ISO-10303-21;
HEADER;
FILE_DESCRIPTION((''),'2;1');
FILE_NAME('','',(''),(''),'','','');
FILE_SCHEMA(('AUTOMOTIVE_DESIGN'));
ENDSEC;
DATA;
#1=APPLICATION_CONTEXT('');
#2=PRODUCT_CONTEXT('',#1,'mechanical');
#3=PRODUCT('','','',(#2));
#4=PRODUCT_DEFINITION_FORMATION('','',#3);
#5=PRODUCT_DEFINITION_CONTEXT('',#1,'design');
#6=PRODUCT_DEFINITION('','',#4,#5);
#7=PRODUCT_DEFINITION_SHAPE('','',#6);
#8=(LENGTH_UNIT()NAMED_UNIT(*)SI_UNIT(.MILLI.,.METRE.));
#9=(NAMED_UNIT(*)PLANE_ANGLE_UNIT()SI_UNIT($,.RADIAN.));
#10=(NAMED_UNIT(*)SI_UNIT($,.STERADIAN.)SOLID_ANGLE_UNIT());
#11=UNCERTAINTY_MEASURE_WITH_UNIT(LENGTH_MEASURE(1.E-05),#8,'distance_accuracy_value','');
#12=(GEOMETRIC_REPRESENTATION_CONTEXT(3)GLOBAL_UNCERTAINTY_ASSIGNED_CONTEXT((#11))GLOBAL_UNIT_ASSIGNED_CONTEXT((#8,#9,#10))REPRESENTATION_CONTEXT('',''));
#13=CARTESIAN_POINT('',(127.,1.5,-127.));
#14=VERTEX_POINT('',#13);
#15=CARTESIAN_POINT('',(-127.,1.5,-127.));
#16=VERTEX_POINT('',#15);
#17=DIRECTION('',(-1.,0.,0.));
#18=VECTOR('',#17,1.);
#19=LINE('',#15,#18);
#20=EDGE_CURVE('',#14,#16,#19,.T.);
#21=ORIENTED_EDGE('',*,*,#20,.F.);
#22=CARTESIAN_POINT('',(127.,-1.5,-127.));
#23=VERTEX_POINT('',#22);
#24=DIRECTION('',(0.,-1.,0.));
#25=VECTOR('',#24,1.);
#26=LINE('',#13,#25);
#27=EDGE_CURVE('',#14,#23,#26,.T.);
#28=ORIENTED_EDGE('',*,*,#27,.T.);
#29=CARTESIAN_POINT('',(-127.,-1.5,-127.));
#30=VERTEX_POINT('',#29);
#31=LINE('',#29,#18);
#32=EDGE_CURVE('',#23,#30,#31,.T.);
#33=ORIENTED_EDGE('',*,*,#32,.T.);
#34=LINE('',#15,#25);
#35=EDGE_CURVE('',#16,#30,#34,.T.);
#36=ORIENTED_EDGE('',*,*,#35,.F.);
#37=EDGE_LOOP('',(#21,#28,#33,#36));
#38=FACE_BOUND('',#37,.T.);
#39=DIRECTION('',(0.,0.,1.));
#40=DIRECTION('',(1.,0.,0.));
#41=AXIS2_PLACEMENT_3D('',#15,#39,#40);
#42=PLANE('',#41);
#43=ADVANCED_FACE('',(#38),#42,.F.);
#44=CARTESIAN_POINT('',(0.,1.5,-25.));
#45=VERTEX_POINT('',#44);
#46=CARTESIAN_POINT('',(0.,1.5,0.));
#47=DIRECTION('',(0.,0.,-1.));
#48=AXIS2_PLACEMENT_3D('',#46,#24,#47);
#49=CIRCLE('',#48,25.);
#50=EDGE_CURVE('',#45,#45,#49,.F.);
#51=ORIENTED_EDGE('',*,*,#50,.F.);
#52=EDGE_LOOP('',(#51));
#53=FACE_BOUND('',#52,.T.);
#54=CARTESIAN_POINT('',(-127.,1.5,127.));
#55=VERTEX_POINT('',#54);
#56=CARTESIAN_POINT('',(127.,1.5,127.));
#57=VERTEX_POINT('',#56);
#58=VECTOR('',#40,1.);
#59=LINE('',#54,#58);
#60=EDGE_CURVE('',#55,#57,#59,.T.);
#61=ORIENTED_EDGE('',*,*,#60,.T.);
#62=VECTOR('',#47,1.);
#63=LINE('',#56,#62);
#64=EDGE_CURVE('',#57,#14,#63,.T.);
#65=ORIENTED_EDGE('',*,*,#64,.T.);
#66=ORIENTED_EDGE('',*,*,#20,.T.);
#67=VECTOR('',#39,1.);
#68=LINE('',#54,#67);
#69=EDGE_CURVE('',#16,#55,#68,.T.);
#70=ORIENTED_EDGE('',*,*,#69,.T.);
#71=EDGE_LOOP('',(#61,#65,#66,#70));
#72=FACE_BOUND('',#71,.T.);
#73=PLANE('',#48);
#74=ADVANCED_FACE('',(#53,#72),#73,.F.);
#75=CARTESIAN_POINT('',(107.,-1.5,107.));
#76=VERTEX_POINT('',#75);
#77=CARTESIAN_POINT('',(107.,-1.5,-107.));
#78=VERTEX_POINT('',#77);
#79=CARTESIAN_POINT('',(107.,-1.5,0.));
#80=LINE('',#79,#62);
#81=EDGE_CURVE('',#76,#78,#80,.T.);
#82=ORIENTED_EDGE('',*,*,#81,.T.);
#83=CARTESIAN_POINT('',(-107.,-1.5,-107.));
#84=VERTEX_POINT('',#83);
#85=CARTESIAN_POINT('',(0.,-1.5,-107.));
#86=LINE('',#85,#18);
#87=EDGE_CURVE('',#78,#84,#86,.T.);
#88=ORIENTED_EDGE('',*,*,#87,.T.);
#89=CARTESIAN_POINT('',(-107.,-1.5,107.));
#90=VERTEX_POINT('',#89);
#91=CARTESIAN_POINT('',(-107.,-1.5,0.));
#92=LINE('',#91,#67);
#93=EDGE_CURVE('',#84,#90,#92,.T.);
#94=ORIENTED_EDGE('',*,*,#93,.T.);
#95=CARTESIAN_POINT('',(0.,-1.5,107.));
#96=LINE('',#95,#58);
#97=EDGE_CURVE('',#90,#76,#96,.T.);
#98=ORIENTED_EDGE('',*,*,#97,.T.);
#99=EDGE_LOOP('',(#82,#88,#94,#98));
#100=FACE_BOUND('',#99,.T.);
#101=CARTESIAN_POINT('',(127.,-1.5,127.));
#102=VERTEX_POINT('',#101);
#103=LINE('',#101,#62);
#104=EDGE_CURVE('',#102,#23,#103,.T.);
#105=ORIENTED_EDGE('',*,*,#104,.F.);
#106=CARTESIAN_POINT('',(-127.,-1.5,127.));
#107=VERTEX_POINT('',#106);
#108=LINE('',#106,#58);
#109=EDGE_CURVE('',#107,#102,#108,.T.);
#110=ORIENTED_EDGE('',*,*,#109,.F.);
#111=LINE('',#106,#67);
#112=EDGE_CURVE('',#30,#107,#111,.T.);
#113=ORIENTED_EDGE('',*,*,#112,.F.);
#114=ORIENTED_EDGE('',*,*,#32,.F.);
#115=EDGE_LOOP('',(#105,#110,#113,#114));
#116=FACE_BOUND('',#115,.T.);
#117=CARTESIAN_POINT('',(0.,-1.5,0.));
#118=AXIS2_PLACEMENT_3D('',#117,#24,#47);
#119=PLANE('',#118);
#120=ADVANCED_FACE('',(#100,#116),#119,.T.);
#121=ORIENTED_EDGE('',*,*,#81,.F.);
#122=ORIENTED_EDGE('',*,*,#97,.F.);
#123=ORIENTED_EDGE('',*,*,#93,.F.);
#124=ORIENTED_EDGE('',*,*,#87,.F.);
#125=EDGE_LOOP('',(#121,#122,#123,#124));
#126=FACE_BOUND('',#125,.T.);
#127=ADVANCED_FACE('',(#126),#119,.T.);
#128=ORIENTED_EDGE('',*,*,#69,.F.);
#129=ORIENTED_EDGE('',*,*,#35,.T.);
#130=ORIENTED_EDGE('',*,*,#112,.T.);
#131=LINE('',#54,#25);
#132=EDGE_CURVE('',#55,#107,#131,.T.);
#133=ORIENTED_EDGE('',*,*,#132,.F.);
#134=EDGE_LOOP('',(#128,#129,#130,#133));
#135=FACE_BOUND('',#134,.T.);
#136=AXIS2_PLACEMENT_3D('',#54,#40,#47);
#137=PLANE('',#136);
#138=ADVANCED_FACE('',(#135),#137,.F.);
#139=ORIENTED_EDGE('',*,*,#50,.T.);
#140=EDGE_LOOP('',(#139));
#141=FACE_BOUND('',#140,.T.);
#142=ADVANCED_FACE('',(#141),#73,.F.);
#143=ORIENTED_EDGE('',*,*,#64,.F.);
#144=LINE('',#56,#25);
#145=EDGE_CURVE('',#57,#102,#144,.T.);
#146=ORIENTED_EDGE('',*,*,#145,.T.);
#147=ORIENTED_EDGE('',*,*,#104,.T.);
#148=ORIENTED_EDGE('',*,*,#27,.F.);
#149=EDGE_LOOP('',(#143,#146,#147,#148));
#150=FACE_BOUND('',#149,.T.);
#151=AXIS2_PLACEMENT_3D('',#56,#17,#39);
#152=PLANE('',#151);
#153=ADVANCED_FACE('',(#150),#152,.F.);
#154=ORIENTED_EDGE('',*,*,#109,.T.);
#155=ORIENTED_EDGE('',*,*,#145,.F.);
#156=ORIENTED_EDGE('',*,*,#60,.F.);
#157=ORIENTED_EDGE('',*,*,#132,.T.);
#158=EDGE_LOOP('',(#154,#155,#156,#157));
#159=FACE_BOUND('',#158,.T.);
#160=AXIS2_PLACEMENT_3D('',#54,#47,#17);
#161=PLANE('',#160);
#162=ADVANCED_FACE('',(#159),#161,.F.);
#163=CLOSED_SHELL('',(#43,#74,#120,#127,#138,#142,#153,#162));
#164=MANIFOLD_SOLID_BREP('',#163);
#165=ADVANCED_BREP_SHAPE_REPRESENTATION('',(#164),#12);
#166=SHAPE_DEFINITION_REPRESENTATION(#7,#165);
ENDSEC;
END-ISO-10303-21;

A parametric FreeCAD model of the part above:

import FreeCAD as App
import Part
import Sketcher
Q = App.Units.Quantity


def add_polygon(sketch, points):
    """Adds a closed chain of lines whose ends are joined by coincident constraints."""
    first, n = sketch.GeometryCount, len(points)
    for a, b in zip(points, points[1:] + points[:1]):
        sketch.addGeometry(Part.LineSegment(App.Vector(*a, 0), App.Vector(*b, 0)), False)
    for i in range(n):
        sketch.addConstraint(Sketcher.Constraint("Coincident", first + i, 2, first + (i + 1) % n, 1))

doc = App.newDocument("Part")
body = doc.addObject("PartDesign::Body", "Body")

sketch1 = body.newObject("Sketcher::SketchObject", "Sketch")
sketch1.AttachmentSupport = (doc.getObject("XZ_Plane"), [""])
sketch1.MapMode = "FlatFace"
add_polygon(sketch1, [(-127, -127), (-127, 127), (127, 127), (127, -127)])
sketch1.addConstraint([
    Sketcher.Constraint("Vertical", 0),
    Sketcher.Constraint("Horizontal", 1),
    Sketcher.Constraint("Vertical", 2),
    Sketcher.Constraint("Horizontal", 3),
    Sketcher.Constraint("Symmetric", 0, 2, 2, 2, -1, 1),
    Sketcher.Constraint("Equal", 3, 0),
    Sketcher.Constraint("DistanceX", 1, 1, 1, 2, Q("254 mm")),
])
pad1 = body.newObject("PartDesign::Pad", "Pad")
pad1.Profile = sketch1
pad1.Length = 3
pad1.Midplane = True

doc.recompute()
